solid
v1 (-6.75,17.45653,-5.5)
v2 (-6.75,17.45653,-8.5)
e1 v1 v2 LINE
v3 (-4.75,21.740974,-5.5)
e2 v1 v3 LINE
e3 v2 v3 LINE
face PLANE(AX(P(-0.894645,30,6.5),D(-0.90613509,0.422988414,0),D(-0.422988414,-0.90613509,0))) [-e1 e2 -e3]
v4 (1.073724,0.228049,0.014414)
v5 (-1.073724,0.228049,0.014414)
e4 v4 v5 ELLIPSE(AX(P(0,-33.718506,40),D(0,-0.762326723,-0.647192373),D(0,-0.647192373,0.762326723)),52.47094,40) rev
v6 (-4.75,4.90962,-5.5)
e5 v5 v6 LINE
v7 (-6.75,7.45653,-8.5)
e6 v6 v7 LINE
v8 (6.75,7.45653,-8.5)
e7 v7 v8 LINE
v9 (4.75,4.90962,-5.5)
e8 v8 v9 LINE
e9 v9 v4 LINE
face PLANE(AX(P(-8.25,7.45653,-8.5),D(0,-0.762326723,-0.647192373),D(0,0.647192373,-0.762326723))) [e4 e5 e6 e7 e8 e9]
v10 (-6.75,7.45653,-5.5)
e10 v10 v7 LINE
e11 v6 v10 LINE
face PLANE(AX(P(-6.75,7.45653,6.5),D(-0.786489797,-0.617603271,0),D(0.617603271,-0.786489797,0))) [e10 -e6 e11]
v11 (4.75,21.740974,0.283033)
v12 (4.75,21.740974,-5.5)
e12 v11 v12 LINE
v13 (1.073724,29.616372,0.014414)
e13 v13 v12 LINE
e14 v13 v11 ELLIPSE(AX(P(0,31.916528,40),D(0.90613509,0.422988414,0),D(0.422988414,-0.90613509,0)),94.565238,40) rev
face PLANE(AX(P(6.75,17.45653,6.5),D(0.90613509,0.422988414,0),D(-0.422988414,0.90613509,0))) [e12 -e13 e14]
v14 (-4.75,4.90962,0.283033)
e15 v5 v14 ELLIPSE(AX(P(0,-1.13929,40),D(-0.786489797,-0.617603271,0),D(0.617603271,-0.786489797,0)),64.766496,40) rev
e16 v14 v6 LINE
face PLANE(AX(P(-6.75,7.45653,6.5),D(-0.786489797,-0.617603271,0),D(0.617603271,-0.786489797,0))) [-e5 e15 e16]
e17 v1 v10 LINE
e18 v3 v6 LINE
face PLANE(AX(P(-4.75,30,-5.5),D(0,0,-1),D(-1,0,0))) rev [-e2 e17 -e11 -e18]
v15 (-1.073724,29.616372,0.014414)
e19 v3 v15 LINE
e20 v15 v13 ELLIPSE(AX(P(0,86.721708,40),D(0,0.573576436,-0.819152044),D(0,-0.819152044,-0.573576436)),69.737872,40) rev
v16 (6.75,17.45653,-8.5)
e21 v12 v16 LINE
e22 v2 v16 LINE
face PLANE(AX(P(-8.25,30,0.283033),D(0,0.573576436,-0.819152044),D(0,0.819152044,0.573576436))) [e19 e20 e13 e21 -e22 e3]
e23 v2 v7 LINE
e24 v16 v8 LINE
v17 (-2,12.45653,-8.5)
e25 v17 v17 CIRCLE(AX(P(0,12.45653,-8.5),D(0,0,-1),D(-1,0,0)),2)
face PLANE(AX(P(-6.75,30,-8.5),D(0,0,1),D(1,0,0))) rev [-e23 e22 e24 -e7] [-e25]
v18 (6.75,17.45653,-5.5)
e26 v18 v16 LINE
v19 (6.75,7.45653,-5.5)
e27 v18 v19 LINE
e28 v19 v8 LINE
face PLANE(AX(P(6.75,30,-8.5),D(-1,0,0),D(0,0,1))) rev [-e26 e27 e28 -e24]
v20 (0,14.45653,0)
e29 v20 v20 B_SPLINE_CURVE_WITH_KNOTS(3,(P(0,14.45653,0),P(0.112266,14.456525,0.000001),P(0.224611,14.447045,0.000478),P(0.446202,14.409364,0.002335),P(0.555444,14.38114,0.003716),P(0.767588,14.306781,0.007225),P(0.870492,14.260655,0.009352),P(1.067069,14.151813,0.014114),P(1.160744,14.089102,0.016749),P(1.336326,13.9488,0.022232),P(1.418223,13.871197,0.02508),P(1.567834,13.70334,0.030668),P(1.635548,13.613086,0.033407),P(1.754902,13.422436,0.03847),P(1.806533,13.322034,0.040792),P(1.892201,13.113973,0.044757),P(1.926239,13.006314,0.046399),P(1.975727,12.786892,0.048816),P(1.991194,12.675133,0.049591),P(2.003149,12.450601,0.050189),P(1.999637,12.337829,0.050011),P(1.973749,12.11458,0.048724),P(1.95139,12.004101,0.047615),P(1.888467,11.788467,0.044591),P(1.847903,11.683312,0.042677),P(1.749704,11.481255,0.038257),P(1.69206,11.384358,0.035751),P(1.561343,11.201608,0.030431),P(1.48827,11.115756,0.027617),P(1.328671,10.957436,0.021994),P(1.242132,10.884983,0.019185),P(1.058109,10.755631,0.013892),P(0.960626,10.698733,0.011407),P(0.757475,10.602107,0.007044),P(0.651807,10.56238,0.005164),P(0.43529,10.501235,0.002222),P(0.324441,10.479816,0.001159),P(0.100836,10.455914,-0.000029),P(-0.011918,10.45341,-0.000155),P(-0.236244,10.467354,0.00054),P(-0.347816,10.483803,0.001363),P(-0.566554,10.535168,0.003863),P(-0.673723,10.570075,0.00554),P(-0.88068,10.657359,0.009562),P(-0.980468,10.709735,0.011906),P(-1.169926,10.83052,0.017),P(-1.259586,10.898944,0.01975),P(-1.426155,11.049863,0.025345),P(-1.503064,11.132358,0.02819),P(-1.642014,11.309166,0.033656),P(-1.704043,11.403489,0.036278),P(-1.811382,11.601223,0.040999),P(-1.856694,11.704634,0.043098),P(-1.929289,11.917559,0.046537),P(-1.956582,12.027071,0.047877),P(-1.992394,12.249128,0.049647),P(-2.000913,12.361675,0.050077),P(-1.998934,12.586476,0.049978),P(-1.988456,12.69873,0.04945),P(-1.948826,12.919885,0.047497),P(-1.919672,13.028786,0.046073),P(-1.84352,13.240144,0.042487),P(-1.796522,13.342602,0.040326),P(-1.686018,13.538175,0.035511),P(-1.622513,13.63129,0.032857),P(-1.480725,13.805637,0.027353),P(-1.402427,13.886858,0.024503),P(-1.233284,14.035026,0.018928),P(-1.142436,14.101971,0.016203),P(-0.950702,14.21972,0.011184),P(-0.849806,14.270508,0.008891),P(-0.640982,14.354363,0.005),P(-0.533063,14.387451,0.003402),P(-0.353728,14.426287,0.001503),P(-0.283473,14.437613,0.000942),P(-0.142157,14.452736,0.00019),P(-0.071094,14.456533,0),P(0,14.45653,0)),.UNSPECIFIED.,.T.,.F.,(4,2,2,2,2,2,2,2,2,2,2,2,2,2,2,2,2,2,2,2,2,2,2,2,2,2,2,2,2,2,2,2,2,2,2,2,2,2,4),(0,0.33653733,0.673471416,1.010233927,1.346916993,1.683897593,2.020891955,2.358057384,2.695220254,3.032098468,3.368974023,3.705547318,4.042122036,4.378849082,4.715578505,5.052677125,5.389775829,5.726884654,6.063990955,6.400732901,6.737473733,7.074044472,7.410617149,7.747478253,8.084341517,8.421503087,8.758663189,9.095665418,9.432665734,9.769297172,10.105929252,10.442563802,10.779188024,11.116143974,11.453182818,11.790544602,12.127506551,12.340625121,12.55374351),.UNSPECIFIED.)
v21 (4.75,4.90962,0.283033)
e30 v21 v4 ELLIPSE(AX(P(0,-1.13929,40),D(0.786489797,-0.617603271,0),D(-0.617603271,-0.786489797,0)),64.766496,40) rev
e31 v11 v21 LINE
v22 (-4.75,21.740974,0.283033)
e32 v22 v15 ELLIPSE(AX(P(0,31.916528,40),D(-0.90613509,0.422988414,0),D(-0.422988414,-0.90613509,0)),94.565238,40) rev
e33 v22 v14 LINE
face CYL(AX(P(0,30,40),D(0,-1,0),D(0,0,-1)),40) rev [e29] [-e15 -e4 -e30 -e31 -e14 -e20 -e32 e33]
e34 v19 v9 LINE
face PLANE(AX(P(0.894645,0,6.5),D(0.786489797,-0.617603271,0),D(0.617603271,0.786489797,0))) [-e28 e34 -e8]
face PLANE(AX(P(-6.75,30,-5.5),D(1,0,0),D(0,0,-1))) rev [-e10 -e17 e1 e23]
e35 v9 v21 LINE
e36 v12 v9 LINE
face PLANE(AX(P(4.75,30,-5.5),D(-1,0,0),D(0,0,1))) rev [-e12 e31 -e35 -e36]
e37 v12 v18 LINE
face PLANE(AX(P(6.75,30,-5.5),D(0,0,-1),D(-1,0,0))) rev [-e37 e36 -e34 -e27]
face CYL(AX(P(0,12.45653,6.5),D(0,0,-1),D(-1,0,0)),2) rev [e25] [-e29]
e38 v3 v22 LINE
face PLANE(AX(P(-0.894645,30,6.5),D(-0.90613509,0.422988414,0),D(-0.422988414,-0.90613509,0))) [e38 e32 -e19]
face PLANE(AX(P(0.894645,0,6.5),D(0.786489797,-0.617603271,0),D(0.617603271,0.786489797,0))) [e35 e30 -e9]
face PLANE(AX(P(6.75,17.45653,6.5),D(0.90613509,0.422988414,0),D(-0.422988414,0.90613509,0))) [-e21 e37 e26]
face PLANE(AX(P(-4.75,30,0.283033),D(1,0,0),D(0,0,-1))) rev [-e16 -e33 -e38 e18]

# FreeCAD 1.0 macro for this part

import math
import FreeCAD as App
import Part
import Sketcher
Q = App.Units.Quantity

doc = App.newDocument("Part")
params = doc.addObject("Spreadsheet::Sheet", "Params")
for row, (alias, value) in enumerate([
    ("sketch1_radius", "40 mm"),
    ("sketch1_width", "2 mm"),
    ("sketch1_height", "3 mm"),
    ("sketch1_width2", "13.5 mm"),
    ("pad1_length", "30 mm"),
    ("sketch2_width", "30 mm"),
    ("sketch2_width2", "10 mm"),
    ("sketch2_width3", "38.81 mm"),
    ("pocket1_length", "15 mm"),
    ("sketch3_diameter", "4 mm"),
    ("sketch3_height", "10 mm"),
    ("sketch3_width", "22.31 mm"),
    ("sketch3_height2", "38.81 mm"),
    ("pocket2_length", "15 mm"),
], start=1):
    params.set(f"A{row}", alias)
    params.set(f"B{row}", "=" + value)
    params.setAlias(f"B{row}", alias)

body = doc.addObject("PartDesign::Body", "Body")

# Sketch on XZ plane
sketch1 = body.newObject("Sketcher::SketchObject", "Sketch")
sketch1.AttachmentSupport = (doc.getObject("XZ_Plane"), [""])
sketch1.MapMode = "FlatFace"
sketch1.addGeometry([
    Part.LineSegment(App.Vector(-4.8, -5.5, 0), App.Vector(-4.8, 0.3, 0)),  # 0
    Part.ArcOfCircle(Part.Circle(App.Vector(0, 40, 0), App.Vector(0, 0, 1), 40), math.radians(-96.82), math.radians(-83.18)),  # 1
    Part.LineSegment(App.Vector(4.8, 0.3, 0), App.Vector(4.8, -5.5, 0)),  # 2
    Part.LineSegment(App.Vector(4.8, -5.5, 0), App.Vector(6.8, -5.5, 0)),  # 3
    Part.LineSegment(App.Vector(6.8, -5.5, 0), App.Vector(6.8, -8.5, 0)),  # 4
    Part.LineSegment(App.Vector(6.8, -8.5, 0), App.Vector(-6.8, -8.5, 0)),  # 5
    Part.LineSegment(App.Vector(-6.8, -8.5, 0), App.Vector(-6.8, -5.5, 0)),  # 6
    Part.LineSegment(App.Vector(-6.8, -5.5, 0), App.Vector(-4.8, -5.5, 0)),  # 7
], False)
sketch1.addConstraint([
    Sketcher.Constraint("Coincident", 0, 2, 1, 1),
    Sketcher.Constraint("Coincident", 1, 2, 2, 1),
    Sketcher.Constraint("Coincident", 2, 2, 3, 1),
    Sketcher.Constraint("Coincident", 3, 2, 4, 1),
    Sketcher.Constraint("Coincident", 4, 2, 5, 1),
    Sketcher.Constraint("Coincident", 5, 2, 6, 1),
    Sketcher.Constraint("Coincident", 6, 2, 7, 1),
    Sketcher.Constraint("Coincident", 7, 2, 0, 1),
    Sketcher.Constraint("Vertical", 0),
    Sketcher.Constraint("Vertical", 2),
    Sketcher.Constraint("Horizontal", 3),
    Sketcher.Constraint("Vertical", 4),
    Sketcher.Constraint("Horizontal", 5),
    Sketcher.Constraint("Vertical", 6),
    Sketcher.Constraint("Horizontal", 7),
    Sketcher.Constraint("Symmetric", 0, 2, 1, 2, -2),
    Sketcher.Constraint("Symmetric", 3, 2, 6, 2, -2),
    Sketcher.Constraint("Radius", 1, Q("40 mm")),
    Sketcher.Constraint("DistanceX", 3, 1, 3, 2, Q("2 mm")),
    Sketcher.Constraint("DistanceY", 4, 2, 4, 1, Q("3 mm")),
    Sketcher.Constraint("DistanceX", 5, 2, 5, 1, Q("13.5 mm")),
    Sketcher.Constraint("DistanceY", -1, 1, 1, 3, Q("40 mm")),
    Sketcher.Constraint("DistanceY", 2, 2, -1, 1, Q("5.5 mm")),
])
sketch1.setExpression("Constraints[17]", "Params.sketch1_radius")
sketch1.setExpression("Constraints[18]", "Params.sketch1_width")
sketch1.setExpression("Constraints[19]", "Params.sketch1_height")
sketch1.setExpression("Constraints[20]", "Params.sketch1_width2")
pad1 = body.newObject("PartDesign::Pad", "Pad")
pad1.Profile = sketch1
pad1.setExpression("Length", "Params.pad1_length")
pad1.Reversed = True

# Sketch on YZ plane
sketch2 = body.newObject("Sketcher::SketchObject", "Sketch001")
sketch2.AttachmentSupport = (doc.getObject("YZ_Plane"), [""])
sketch2.MapMode = "FlatFace"
sketch2.AttachmentOffset = App.Placement(App.Vector(0, 0, 6.75), App.Rotation())
sketch2.addGeometry([
    Part.LineSegment(App.Vector(34, 5, 0), App.Vector(-4, 5, 0)),  # 0
    Part.LineSegment(App.Vector(-4, 5, 0), App.Vector(-4, -13, 0)),  # 1
    Part.LineSegment(App.Vector(-4, -13, 0), App.Vector(34, -13, 0)),  # 2
    Part.LineSegment(App.Vector(34, -13, 0), App.Vector(34, 5, 0)),  # 3
    Part.LineSegment(App.Vector(0, 0, 0), App.Vector(30, 0, 0)),  # 4
    Part.LineSegment(App.Vector(30, 0, 0), App.Vector(17, -8, 0)),  # 5
    Part.LineSegment(App.Vector(17, -8, 0), App.Vector(7, -8, 0)),  # 6
    Part.LineSegment(App.Vector(7, -8, 0), App.Vector(0, 0, 0)),  # 7
], False)
sketch2.addConstraint([
    Sketcher.Constraint("Coincident", 0, 2, 1, 1),
    Sketcher.Constraint("Coincident", 1, 2, 2, 1),
    Sketcher.Constraint("Coincident", 2, 2, 3, 1),
    Sketcher.Constraint("Coincident", 3, 2, 0, 1),
    Sketcher.Constraint("Coincident", 4, 2, 5, 1),
    Sketcher.Constraint("Coincident", 5, 2, 6, 1),
    Sketcher.Constraint("Coincident", 6, 2, 7, 1),
    Sketcher.Constraint("Coincident", 7, 2, 4, 1),
    Sketcher.Constraint("Horizontal", 0),
    Sketcher.Constraint("Vertical", 1),
    Sketcher.Constraint("Horizontal", 2),
    Sketcher.Constraint("Vertical", 3),
    Sketcher.Constraint("Horizontal", 4),
    Sketcher.Constraint("Horizontal", 6),
    Sketcher.Constraint("PointOnObject", 7, 2, -2),
    Sketcher.Constraint("DistanceX", 4, 1, 4, 2, Q("30 mm")),
    Sketcher.Constraint("DistanceX", 6, 2, 6, 1, Q("10 mm")),
    Sketcher.Constraint("Angle", 5, Q("-145 deg")),
    Sketcher.Constraint("DistanceX", 0, 2, 0, 1, Q("38.81 mm")),
    Sketcher.Constraint("DistanceY", 5, 2, -1, 1, Q("8.5 mm")),
    Sketcher.Constraint("DistanceY", 1, 2, 1, 1, Q("17.593 mm")),
    Sketcher.Constraint("DistanceX", 0, 2, -1, 1, Q("4.405 mm")),
    Sketcher.Constraint("DistanceY", -1, 1, 0, 2, Q("4.688 mm")),
    Sketcher.Constraint("Distance", 5, Q("15.31275 mm")),
])
sketch2.setExpression("Constraints[15]", "Params.sketch2_width")
sketch2.setExpression("Constraints[16]", "Params.sketch2_width2")
sketch2.setExpression("Constraints[18]", "Params.sketch2_width3")
pocket1 = body.newObject("PartDesign::Pocket", "Pocket")
pocket1.Profile = sketch2
pocket1.setExpression("Length", "Params.pocket1_length")

# Sketch on XY plane
sketch3 = body.newObject("Sketcher::SketchObject", "Sketch002")
sketch3.AttachmentSupport = (doc.getObject("XY_Plane"), [""])
sketch3.MapMode = "FlatFace"
sketch3.AttachmentOffset = App.Placement(App.Vector(0, 0, -8.5), App.Rotation())
sketch3.addGeometry([
    Part.LineSegment(App.Vector(11.2, 34.4, 0), App.Vector(11.2, -4.4, 0)),  # 0
    Part.LineSegment(App.Vector(11.2, -4.4, 0), App.Vector(-11.2, -4.4, 0)),  # 1
    Part.LineSegment(App.Vector(-11.2, -4.4, 0), App.Vector(-11.2, 34.4, 0)),  # 2
    Part.LineSegment(App.Vector(-11.2, 34.4, 0), App.Vector(11.2, 34.4, 0)),  # 3
    Part.LineSegment(App.Vector(6.8, 7.5, 0), App.Vector(6.8, 17.5, 0)),  # 4
    Part.LineSegment(App.Vector(6.8, 17.5, 0), App.Vector(0.9, 30, 0)),  # 5
    Part.LineSegment(App.Vector(0.9, 30, 0), App.Vector(-0.9, 30, 0)),  # 6
    Part.LineSegment(App.Vector(-0.9, 30, 0), App.Vector(-6.8, 17.5, 0)),  # 7
    Part.LineSegment(App.Vector(-6.8, 17.5, 0), App.Vector(-6.8, 7.5, 0)),  # 8
    Part.LineSegment(App.Vector(-6.8, 7.5, 0), App.Vector(-0.9, 0, 0)),  # 9
    Part.LineSegment(App.Vector(-0.9, 0, 0), App.Vector(0.9, 0, 0)),  # 10
    Part.LineSegment(App.Vector(0.9, 0, 0), App.Vector(6.8, 7.5, 0)),  # 11
    Part.Circle(App.Vector(0, 12.5, 0), App.Vector(0, 0, 1), 2),  # 12
], False)
sketch3.addConstraint([
    Sketcher.Constraint("Coincident", 0, 2, 1, 1),
    Sketcher.Constraint("Coincident", 1, 2, 2, 1),
    Sketcher.Constraint("Coincident", 2, 2, 3, 1),
    Sketcher.Constraint("Coincident", 3, 2, 0, 1),
    Sketcher.Constraint("Coincident", 4, 2, 5, 1),
    Sketcher.Constraint("Coincident", 5, 2, 6, 1),
    Sketcher.Constraint("Coincident", 6, 2, 7, 1),
    Sketcher.Constraint("Coincident", 7, 2, 8, 1),
    Sketcher.Constraint("Coincident", 8, 2, 9, 1),
    Sketcher.Constraint("Coincident", 9, 2, 10, 1),
    Sketcher.Constraint("Coincident", 10, 2, 11, 1),
    Sketcher.Constraint("Coincident", 11, 2, 4, 1),
    Sketcher.Constraint("Vertical", 0),
    Sketcher.Constraint("Horizontal", 1),
    Sketcher.Constraint("Vertical", 2),
    Sketcher.Constraint("Horizontal", 3),
    Sketcher.Constraint("Vertical", 4),
    Sketcher.Constraint("Horizontal", 6),
    Sketcher.Constraint("Vertical", 8),
    Sketcher.Constraint("Horizontal", 10),
    Sketcher.Constraint("Symmetric", 9, 2, 10, 2, -1, 1),
    Sketcher.Constraint("Symmetric", 4, 2, 7, 2, -2),
    Sketcher.Constraint("PointOnObject", 12, 3, -2),
    Sketcher.Constraint("Horizontal", 8, 2, 11, 2),
    Sketcher.Constraint("Vertical", 6, 2, 9, 2),
    Sketcher.Constraint("Vertical", 5, 2, 10, 2),
    Sketcher.Constraint("Diameter", 12, Q("4 mm")),
    Sketcher.Constraint("DistanceY", 4, 1, 4, 2, Q("10 mm")),
    Sketcher.Constraint("DistanceY", -1, 1, 5, 2, Q("30 mm")),
    Sketcher.Constraint("DistanceY", 12, 3, 4, 2, Q("5 mm")),
    Sketcher.Constraint("DistanceX", 1, 2, 1, 1, Q("22.31 mm")),
    Sketcher.Constraint("DistanceY", 0, 2, 0, 1, Q("38.81 mm")),
    Sketcher.Constraint("DistanceX", 7, 2, 4, 2, Q("13.5 mm")),
    Sketcher.Constraint("DistanceX", -1, 1, 0, 2, Q("11.155 mm")),
    Sketcher.Constraint("DistanceY", 0, 2, -1, 1, Q("4.405 mm")),
    Sketcher.Constraint("DistanceX", 6, 2, 6, 1, Q("1.78929 mm")),
    Sketcher.Constraint("Distance", 9, Q("9.480771 mm")),
])
sketch3.setExpression("Constraints[26]", "Params.sketch3_diameter")
sketch3.setExpression("Constraints[27]", "Params.sketch3_height")
sketch3.setExpression("Constraints[30]", "Params.sketch3_width")
sketch3.setExpression("Constraints[31]", "Params.sketch3_height2")
pocket2 = body.newObject("PartDesign::Pocket", "Pocket001")
pocket2.Profile = sketch3
pocket2.setExpression("Length", "Params.pocket2_length")
pocket2.Reversed = True

doc.recompute()
